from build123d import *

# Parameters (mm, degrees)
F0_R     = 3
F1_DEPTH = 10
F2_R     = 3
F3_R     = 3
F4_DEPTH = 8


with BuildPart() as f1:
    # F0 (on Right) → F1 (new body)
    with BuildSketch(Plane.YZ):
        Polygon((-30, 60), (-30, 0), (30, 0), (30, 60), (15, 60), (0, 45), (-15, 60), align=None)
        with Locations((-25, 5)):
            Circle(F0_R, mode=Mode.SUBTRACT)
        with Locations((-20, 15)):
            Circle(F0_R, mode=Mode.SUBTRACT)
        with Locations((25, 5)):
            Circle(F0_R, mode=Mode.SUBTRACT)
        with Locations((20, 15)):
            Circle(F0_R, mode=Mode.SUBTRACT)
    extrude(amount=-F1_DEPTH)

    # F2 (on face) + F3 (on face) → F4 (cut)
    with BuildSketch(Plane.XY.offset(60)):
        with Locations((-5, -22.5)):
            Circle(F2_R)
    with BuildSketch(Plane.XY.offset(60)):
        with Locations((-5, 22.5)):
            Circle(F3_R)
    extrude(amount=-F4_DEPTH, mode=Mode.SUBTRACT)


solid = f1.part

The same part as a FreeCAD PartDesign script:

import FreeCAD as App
import Part
import Sketcher
from FreeCAD import Vector
Q = App.Units.Quantity

doc = App.newDocument("Part")
params = doc.addObject("Spreadsheet::Sheet", "Params")
for row, (alias, value) in enumerate([
    ("sketch1_diameter", "6 mm"),
    ("sketch1_width", "60 mm"),
    ("sketch1_width2", "15 mm"),
    ("pad1_length", "10 mm"),
    ("sketch2_diameter", "6 mm"),
    ("pocket1_length", "8 mm"),
], start=1):
    params.set(f"A{row}", alias)
    params.set(f"B{row}", "=" + value)
    params.setAlias(f"B{row}", alias)

body = doc.addObject("PartDesign::Body", "Body")

# Sketch on YZ plane
sketch1 = body.newObject("Sketcher::SketchObject", "Sketch")
sketch1.AttachmentSupport = (doc.getObject("YZ_Plane"), [""])
sketch1.MapMode = "FlatFace"
sketch1.addGeometry(Part.LineSegment(Vector(-30, 60, 0), Vector(-30, 0, 0)), False)
sketch1.addGeometry(Part.LineSegment(Vector(-30, 0, 0), Vector(30, 0, 0)), False)
sketch1.addGeometry(Part.LineSegment(Vector(30, 0, 0), Vector(30, 60, 0)), False)
sketch1.addGeometry(Part.LineSegment(Vector(30, 60, 0), Vector(15, 60, 0)), False)
sketch1.addGeometry(Part.LineSegment(Vector(15, 60, 0), Vector(0, 45, 0)), False)
sketch1.addGeometry(Part.LineSegment(Vector(0, 45, 0), Vector(-15, 60, 0)), False)
sketch1.addGeometry(Part.LineSegment(Vector(-15, 60, 0), Vector(-30, 60, 0)), False)
sketch1.addGeometry(Part.Circle(Vector(-25, 5, 0), Vector(0, 0, 1), 3), False)
sketch1.addGeometry(Part.Circle(Vector(25, 5, 0), Vector(0, 0, 1), 3), False)
sketch1.addGeometry(Part.Circle(Vector(-20, 15, 0), Vector(0, 0, 1), 3), False)
sketch1.addGeometry(Part.Circle(Vector(20, 15, 0), Vector(0, 0, 1), 3), False)
sketch1.addConstraint(Sketcher.Constraint("Coincident", 0, 2, 1, 1))
sketch1.addConstraint(Sketcher.Constraint("Coincident", 1, 2, 2, 1))
sketch1.addConstraint(Sketcher.Constraint("Coincident", 2, 2, 3, 1))
sketch1.addConstraint(Sketcher.Constraint("Coincident", 3, 2, 4, 1))
sketch1.addConstraint(Sketcher.Constraint("Coincident", 4, 2, 5, 1))
sketch1.addConstraint(Sketcher.Constraint("Coincident", 5, 2, 6, 1))
sketch1.addConstraint(Sketcher.Constraint("Coincident", 6, 2, 0, 1))
sketch1.addConstraint(Sketcher.Constraint("Vertical", 0))
sketch1.addConstraint(Sketcher.Constraint("Horizontal", 1))
sketch1.addConstraint(Sketcher.Constraint("Vertical", 2))
sketch1.addConstraint(Sketcher.Constraint("Horizontal", 3))
sketch1.addConstraint(Sketcher.Constraint("Horizontal", 6))
sketch1.addConstraint(Sketcher.Constraint("Equal", 7, 8))
sketch1.addConstraint(Sketcher.Constraint("Equal", 8, 9))
sketch1.addConstraint(Sketcher.Constraint("Equal", 9, 10))
sketch1.addConstraint(Sketcher.Constraint("Symmetric", 0, 2, 1, 2, -1, 1))
sketch1.addConstraint(Sketcher.Constraint("Symmetric", 7, 3, 8, 3, -2))
sketch1.addConstraint(Sketcher.Constraint("Symmetric", 9, 3, 10, 3, -2))
sketch1.addConstraint(Sketcher.Constraint("Symmetric", 3, 2, 5, 2, -2))
sketch1.addConstraint(Sketcher.Constraint("PointOnObject", 4, 2, -2))
sketch1.addConstraint(Sketcher.Constraint("Perpendicular", 4, 5))
sketch1.addConstraint(Sketcher.Constraint("Equal", 1, 0))
sketch1.addConstraint(Sketcher.Constraint("Diameter", 7, Q("6 mm")))
sketch1.addConstraint(Sketcher.Constraint("DistanceX", 1, 1, 1, 2, Q("60 mm")))
sketch1.addConstraint(Sketcher.Constraint("DistanceX", 3, 2, 3, 1, Q("15 mm")))
sketch1.addConstraint(Sketcher.Constraint("DistanceX", 7, 3, -1, 1, Q("25 mm")))
sketch1.addConstraint(Sketcher.Constraint("DistanceY", -1, 1, 7, 3, Q("5 mm")))
sketch1.addConstraint(Sketcher.Constraint("DistanceX", 9, 3, -1, 1, Q("20 mm")))
sketch1.addConstraint(Sketcher.Constraint("DistanceY", -1, 1, 9, 3, Q("15 mm")))
sketch1.setExpression("Constraints[22]", "Params.sketch1_diameter")
sketch1.setExpression("Constraints[23]", "Params.sketch1_width")
sketch1.setExpression("Constraints[24]", "Params.sketch1_width2")
pad1 = body.newObject("PartDesign::Pad", "Pad")
pad1.Profile = sketch1
pad1.setExpression("Length", "Params.pad1_length")
pad1.Reversed = True

# Sketch on XY plane
sketch2 = body.newObject("Sketcher::SketchObject", "Sketch001")
sketch2.AttachmentSupport = (doc.getObject("XY_Plane"), [""])
sketch2.MapMode = "FlatFace"
sketch2.AttachmentOffset = App.Placement(Vector(0, 0, 60), App.Rotation())
sketch2.addGeometry(Part.Circle(Vector(-5, -22.5, 0), Vector(0, 0, 1), 3), False)
sketch2.addGeometry(Part.Circle(Vector(-5, 22.5, 0), Vector(0, 0, 1), 3), False)
sketch2.addConstraint(Sketcher.Constraint("Equal", 0, 1))
sketch2.addConstraint(Sketcher.Constraint("Symmetric", 0, 3, 1, 3, -1))
sketch2.addConstraint(Sketcher.Constraint("Diameter", 0, Q("6 mm")))
sketch2.addConstraint(Sketcher.Constraint("DistanceX", 0, 3, -1, 1, Q("5 mm")))
sketch2.addConstraint(Sketcher.Constraint("DistanceY", 0, 3, 1, 3, Q("45 mm")))
sketch2.setExpression("Constraints[2]", "Params.sketch2_diameter")
pocket1 = body.newObject("PartDesign::Pocket", "Pocket")
pocket1.Profile = sketch2
pocket1.setExpression("Length", "Params.pocket1_length")

doc.recompute()
